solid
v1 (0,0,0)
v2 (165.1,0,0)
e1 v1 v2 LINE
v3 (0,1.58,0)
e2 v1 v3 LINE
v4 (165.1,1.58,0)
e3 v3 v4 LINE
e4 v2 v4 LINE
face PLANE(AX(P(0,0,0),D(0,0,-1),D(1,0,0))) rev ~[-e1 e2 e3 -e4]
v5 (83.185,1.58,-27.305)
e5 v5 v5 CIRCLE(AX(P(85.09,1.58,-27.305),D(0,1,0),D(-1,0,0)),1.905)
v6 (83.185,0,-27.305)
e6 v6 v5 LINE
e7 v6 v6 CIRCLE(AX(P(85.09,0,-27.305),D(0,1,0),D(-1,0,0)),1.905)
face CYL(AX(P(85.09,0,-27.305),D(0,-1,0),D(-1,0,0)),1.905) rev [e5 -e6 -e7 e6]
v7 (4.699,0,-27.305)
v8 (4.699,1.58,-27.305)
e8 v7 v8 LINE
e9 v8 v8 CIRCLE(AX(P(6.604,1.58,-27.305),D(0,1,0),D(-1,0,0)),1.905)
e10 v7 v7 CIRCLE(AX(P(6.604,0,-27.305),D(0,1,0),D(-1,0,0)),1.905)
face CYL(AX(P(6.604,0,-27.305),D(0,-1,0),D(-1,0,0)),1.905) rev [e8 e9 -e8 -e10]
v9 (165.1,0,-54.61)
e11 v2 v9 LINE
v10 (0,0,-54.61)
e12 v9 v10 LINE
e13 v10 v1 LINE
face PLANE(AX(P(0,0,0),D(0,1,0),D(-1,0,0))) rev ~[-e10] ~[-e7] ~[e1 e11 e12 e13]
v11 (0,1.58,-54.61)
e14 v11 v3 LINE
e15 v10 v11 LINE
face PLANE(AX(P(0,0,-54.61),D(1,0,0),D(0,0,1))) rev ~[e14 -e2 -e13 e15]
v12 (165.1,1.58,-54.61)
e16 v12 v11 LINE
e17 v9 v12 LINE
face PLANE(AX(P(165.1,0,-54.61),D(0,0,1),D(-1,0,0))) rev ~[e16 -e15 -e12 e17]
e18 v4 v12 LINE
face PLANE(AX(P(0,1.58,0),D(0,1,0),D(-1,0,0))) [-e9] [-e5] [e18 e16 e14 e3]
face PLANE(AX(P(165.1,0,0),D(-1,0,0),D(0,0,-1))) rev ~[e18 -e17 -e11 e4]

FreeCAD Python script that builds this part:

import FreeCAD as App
import Part
import Sketcher

V = App.Vector
Q = App.Units.Quantity

doc = App.newDocument("Part")
body = doc.addObject("PartDesign::Body", "Body")

sketch1 = body.newObject("Sketcher::SketchObject", "Sketch")
sketch1.AttachmentSupport = (doc.getObject("XZ_Plane"), [""])
sketch1.MapMode = "FlatFace"
sketch1.addGeometry([
    Part.LineSegment(V(0, -54.61, 0), V(0, 0, 0)),
    Part.LineSegment(V(0, 0, 0), V(165.1, 0, 0)),
    Part.LineSegment(V(165.1, 0, 0), V(165.1, -54.61, 0)),
    Part.LineSegment(V(165.1, -54.61, 0), V(0, -54.61, 0)),
    Part.Circle(V(85.09, -27.305, 0), V(0, 0, 1), 1.905),
    Part.Circle(V(6.604, -27.305, 0), V(0, 0, 1), 1.905),
], False)
sketch1.addConstraint([
    Sketcher.Constraint("Coincident", 0, 2, 1, 1),
    Sketcher.Constraint("Coincident", 1, 2, 2, 1),
    Sketcher.Constraint("Coincident", 2, 2, 3, 1),
    Sketcher.Constraint("Coincident", 3, 2, 0, 1),
    Sketcher.Constraint("Vertical", 0),
    Sketcher.Constraint("Horizontal", 1),
    Sketcher.Constraint("Vertical", 2),
    Sketcher.Constraint("Horizontal", 3),
    Sketcher.Constraint("Coincident", 0, 2, -1, 1),
    Sketcher.Constraint("Equal", 4, 5),
    Sketcher.Constraint("Horizontal", 4, 3, 5, 3),
    Sketcher.Constraint("Diameter", 4, Q("0.15 in")),
    Sketcher.Constraint("DistanceX", 1, 1, 1, 2, Q("6.5 in")),
    Sketcher.Constraint("DistanceY", 0, 1, 0, 2, Q("2.15 in")),
    Sketcher.Constraint("DistanceX", -1, 1, 5, 3, Q("0.26 in")),
    Sketcher.Constraint("DistanceX", 5, 3, 4, 3, Q("3.09 in")),
    Sketcher.Constraint("DistanceY", 4, 3, -1, 1, Q("1.075 in")),
])
pad1 = body.newObject("PartDesign::Pad", "Pad")
pad1.Profile = sketch1
pad1.Length = Q("0.0622047 in")
pad1.Reversed = True

doc.recompute()
